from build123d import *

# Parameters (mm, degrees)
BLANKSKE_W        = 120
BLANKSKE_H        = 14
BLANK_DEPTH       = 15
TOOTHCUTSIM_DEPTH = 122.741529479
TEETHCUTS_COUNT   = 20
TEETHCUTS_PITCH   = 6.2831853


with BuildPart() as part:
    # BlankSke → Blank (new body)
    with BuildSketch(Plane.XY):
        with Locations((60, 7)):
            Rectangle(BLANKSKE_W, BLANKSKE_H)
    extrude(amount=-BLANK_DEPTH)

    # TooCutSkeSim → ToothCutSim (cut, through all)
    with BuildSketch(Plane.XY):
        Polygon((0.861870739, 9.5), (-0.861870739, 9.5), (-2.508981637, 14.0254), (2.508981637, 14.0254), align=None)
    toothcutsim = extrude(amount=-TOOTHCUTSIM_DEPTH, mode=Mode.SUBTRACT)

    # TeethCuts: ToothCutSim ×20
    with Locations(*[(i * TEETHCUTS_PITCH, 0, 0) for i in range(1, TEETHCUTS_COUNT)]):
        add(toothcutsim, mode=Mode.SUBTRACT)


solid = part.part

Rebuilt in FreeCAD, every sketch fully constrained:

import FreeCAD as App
import Part
import Sketcher

V = App.Vector
Q = App.Units.Quantity


def add_polygon(sketch, points):
    """Adds a closed chain of lines whose ends are joined by coincident constraints."""
    first, n = sketch.GeometryCount, len(points)
    for a, b in zip(points, points[1:] + points[:1]):
        sketch.addGeometry(Part.LineSegment(App.Vector(*a, 0), App.Vector(*b, 0)), False)
    for i in range(n):
        sketch.addConstraint(Sketcher.Constraint("Coincident", first + i, 2, first + (i + 1) % n, 1))

doc = App.newDocument("Part")
params = doc.addObject("Spreadsheet::Sheet", "Params")
for row, (alias, value) in enumerate([
    ("sketch1_width", "120 mm"),
    ("sketch1_height", "14 mm"),
    ("pad1_length", "15 mm"),
    ("linearpattern_pitch", "6.283185 mm"),
], start=1):
    params.set(f"A{row}", alias)
    params.set(f"B{row}", "=" + value)
    params.setAlias(f"B{row}", alias)

body = doc.addObject("PartDesign::Body", "Body")

# Sketch on XY plane
sketch1 = body.newObject("Sketcher::SketchObject", "Sketch")
sketch1.AttachmentSupport = (doc.getObject("XY_Plane"), [""])
sketch1.MapMode = "FlatFace"
add_polygon(sketch1, [(0, 14), (0, 0), (120, 0), (120, 14)])  # lines 0-3
sketch1.addConstraint([
    Sketcher.Constraint("Vertical", 0),
    Sketcher.Constraint("Horizontal", 1),
    Sketcher.Constraint("Vertical", 2),
    Sketcher.Constraint("Horizontal", 3),
    Sketcher.Constraint("Coincident", 0, 2, -1, 1),
    Sketcher.Constraint("DistanceX", 1, 1, 1, 2, Q("120 mm")),
    Sketcher.Constraint("DistanceY", 0, 2, 0, 1, Q("14 mm")),
])
sketch1.setExpression("Constraints[9]", "Params.sketch1_width")
sketch1.setExpression("Constraints[10]", "Params.sketch1_height")
pad1 = body.newObject("PartDesign::Pad", "Pad")
pad1.Profile = sketch1
pad1.setExpression("Length", "Params.pad1_length")
pad1.Reversed = True

# Sketch on XY plane
sketch2 = body.newObject("Sketcher::SketchObject", "Sketch001")
sketch2.AttachmentSupport = (doc.getObject("XY_Plane"), [""])
sketch2.MapMode = "FlatFace"
add_polygon(sketch2, [(-0.861871, 9.5), (0.861871, 9.5), (2.508982, 14.0254), (-2.508982, 14.0254)])  # lines 0-3
sketch2.addConstraint([
    Sketcher.Constraint("Horizontal", 0),
    Sketcher.Constraint("Horizontal", 2),
    Sketcher.Constraint("Equal", 1, 3),
    Sketcher.Constraint("Angle", 1, Q("70 deg")),
    Sketcher.Constraint("DistanceY", -1, 1, 0, 2, Q("9.5 mm")),
    Sketcher.Constraint("DistanceX", 0, 1, 0, 2, Q("1.723741 mm")),
    Sketcher.Constraint("DistanceY", -1, 1, 1, 2, Q("14.0254 mm")),
    Sketcher.Constraint("DistanceX", -1, 1, 0, 2, Q("0.861871 mm")),
])
pocket1 = body.newObject("PartDesign::Pocket", "Pocket")
pocket1.Profile = sketch2
pocket1.Type = "ThroughAll"
doc.recompute()

linearpattern = body.newObject("PartDesign::LinearPattern", "LinearPattern")
linearpattern.Originals = [pocket1]
linearpattern.Direction = (doc.getObject("X_Axis"), [""])
linearpattern.Mode = "offset"
linearpattern.setExpression("Offset", "Params.linearpattern_pitch")
linearpattern.Occurrences = 20
body.Tip = linearpattern

doc.recompute()
